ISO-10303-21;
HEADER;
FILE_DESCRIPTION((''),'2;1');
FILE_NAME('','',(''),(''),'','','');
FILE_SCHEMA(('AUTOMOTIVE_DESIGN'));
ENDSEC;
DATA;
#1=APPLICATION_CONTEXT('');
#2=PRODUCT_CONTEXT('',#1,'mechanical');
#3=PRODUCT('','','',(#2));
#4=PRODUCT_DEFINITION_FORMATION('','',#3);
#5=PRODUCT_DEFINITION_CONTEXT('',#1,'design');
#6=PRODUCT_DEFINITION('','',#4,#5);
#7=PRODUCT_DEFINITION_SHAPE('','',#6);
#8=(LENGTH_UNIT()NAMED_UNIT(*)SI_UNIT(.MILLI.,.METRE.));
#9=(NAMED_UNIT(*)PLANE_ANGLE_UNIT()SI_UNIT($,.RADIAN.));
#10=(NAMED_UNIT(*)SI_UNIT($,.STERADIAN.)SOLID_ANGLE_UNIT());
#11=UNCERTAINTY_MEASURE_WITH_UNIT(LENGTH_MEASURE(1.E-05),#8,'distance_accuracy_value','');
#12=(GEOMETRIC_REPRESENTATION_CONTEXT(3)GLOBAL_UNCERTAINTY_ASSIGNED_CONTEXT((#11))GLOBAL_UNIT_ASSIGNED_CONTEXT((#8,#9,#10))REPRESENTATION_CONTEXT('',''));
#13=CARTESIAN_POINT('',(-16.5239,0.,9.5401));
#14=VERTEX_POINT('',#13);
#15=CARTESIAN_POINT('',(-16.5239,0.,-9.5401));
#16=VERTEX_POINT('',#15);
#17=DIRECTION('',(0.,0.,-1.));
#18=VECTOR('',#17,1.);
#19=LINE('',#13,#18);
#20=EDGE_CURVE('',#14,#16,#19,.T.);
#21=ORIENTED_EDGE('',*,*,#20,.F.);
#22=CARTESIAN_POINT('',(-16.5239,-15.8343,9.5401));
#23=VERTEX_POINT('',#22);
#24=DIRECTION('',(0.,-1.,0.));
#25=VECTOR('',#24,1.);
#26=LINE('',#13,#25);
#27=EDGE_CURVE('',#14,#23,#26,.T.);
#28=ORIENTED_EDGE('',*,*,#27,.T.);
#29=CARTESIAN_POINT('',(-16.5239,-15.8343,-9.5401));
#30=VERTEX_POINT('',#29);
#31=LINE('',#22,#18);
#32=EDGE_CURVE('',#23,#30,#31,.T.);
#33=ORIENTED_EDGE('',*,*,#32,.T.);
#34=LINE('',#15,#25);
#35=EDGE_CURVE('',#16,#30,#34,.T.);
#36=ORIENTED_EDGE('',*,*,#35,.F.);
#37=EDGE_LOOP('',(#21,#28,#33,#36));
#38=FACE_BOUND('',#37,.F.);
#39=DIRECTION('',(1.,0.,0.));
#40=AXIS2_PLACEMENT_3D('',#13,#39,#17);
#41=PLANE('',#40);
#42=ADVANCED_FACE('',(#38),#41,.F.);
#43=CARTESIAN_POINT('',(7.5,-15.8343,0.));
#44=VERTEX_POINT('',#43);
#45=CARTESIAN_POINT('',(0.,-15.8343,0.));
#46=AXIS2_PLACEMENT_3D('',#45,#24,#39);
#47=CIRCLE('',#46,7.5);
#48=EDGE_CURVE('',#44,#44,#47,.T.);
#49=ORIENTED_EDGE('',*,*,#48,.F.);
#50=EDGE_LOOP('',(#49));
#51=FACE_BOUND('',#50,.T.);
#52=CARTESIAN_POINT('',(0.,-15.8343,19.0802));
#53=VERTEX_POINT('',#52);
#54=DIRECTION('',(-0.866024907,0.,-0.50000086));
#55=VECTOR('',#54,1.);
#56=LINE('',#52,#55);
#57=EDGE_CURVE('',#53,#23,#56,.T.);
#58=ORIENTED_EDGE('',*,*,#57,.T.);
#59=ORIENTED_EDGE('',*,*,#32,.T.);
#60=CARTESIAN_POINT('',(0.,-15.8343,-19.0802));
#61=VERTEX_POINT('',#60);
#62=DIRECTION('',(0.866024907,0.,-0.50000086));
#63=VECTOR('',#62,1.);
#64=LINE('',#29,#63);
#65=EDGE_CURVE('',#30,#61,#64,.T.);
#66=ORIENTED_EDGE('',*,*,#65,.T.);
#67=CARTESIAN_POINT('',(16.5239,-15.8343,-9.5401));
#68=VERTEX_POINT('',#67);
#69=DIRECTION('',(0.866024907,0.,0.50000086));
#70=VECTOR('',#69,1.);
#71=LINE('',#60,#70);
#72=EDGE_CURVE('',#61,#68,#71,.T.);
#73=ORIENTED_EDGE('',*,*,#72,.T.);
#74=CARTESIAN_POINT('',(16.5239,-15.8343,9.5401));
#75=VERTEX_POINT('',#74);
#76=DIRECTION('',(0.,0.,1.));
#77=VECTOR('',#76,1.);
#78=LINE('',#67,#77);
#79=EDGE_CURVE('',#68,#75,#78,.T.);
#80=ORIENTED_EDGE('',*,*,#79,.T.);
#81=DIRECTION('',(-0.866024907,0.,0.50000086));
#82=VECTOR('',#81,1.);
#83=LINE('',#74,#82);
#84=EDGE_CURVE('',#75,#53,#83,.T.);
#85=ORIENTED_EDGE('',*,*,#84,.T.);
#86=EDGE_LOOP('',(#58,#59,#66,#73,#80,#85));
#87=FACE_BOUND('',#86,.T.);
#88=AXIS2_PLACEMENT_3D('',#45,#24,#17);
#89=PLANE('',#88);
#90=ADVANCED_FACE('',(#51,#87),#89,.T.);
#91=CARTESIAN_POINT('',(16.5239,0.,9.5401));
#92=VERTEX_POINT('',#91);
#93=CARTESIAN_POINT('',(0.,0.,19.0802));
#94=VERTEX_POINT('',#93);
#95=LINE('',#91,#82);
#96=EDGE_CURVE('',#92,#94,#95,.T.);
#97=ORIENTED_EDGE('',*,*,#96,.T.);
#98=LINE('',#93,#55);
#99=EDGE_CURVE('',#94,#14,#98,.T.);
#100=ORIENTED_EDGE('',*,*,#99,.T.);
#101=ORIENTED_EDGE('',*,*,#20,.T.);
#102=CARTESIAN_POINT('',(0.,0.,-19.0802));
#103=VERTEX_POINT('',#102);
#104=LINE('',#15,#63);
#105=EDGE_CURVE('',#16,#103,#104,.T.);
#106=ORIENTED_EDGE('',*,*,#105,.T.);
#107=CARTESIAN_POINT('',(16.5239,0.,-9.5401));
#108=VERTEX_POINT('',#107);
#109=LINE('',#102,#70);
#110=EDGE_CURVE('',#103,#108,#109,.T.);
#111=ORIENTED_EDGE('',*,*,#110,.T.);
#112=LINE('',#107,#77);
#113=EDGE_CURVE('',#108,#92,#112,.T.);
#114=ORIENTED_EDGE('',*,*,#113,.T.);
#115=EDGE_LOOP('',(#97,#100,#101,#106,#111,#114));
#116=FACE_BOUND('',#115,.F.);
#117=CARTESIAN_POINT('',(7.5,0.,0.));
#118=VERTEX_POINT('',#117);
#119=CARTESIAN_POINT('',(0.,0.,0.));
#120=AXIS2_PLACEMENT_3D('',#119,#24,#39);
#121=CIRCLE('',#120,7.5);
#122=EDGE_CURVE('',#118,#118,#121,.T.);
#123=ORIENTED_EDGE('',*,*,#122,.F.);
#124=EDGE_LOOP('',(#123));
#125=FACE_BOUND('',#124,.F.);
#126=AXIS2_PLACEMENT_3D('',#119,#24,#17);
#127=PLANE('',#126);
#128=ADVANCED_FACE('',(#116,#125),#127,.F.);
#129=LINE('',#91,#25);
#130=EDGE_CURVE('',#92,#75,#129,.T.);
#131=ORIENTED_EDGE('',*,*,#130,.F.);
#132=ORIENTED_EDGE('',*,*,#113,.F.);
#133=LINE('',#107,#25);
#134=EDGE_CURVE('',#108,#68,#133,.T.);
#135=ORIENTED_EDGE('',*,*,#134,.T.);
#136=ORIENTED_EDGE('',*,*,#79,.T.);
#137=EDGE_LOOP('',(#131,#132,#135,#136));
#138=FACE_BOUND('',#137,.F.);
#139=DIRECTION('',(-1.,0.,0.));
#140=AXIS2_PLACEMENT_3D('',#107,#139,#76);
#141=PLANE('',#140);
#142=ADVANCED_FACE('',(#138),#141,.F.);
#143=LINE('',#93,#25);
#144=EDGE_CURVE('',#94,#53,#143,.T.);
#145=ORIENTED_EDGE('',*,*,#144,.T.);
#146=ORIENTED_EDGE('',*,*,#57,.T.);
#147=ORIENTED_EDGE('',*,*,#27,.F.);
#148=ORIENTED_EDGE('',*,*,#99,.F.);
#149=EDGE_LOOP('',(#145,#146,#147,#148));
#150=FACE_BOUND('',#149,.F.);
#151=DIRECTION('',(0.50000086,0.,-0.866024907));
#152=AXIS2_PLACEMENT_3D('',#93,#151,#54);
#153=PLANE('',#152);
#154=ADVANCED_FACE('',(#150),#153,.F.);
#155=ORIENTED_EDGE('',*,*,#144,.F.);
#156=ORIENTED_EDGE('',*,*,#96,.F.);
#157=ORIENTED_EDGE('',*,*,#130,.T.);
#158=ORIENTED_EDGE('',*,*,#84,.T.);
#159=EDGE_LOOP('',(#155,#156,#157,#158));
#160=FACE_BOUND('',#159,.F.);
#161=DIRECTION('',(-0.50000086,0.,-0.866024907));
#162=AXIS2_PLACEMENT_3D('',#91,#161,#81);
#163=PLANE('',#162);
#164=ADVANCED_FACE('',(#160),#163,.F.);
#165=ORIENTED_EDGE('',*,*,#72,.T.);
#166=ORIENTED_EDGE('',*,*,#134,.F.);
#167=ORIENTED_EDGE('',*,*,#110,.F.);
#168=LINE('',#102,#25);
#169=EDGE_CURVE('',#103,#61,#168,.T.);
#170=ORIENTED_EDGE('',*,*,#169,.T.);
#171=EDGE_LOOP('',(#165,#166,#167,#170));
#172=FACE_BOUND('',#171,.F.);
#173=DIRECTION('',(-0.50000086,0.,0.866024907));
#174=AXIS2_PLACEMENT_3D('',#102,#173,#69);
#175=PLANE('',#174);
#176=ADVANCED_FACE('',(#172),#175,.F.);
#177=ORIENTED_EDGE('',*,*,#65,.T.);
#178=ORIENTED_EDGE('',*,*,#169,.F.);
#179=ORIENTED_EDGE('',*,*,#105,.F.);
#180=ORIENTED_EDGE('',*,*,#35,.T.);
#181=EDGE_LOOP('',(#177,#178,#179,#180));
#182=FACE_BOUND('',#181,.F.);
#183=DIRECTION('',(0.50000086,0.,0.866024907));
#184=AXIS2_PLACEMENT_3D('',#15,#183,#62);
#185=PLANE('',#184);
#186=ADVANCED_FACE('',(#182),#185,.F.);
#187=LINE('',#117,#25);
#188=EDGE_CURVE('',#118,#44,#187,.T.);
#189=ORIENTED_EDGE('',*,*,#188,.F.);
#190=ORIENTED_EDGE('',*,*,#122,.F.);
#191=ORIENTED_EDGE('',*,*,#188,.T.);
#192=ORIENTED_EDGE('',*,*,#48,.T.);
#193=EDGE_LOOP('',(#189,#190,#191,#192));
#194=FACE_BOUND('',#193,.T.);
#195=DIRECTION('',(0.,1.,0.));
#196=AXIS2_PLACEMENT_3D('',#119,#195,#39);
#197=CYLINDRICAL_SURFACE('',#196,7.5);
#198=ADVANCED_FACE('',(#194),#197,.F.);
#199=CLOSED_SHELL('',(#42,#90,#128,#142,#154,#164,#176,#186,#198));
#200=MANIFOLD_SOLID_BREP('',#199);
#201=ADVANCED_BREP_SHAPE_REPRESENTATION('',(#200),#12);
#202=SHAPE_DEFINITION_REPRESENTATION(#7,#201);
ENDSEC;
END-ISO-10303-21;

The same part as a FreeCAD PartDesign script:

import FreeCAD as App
import Part
import Sketcher
Q = App.Units.Quantity


def add_polygon(sketch, points):
    """Adds a closed chain of lines whose ends are joined by coincident constraints."""
    first, n = sketch.GeometryCount, len(points)
    for a, b in zip(points, points[1:] + points[:1]):
        sketch.addGeometry(Part.LineSegment(App.Vector(*a, 0), App.Vector(*b, 0)), False)
    for i in range(n):
        sketch.addConstraint(Sketcher.Constraint("Coincident", first + i, 2, first + (i + 1) % n, 1))

doc = App.newDocument("Part")
body = doc.addObject("PartDesign::Body", "Body")

sketch1 = body.newObject("Sketcher::SketchObject", "Sketch")
sketch1.AttachmentSupport = (doc.getObject("XZ_Plane"), [""])
sketch1.MapMode = "FlatFace"
add_polygon(sketch1, [(17, -10), (17, 10), (0, 19), (-17, 10), (-17, -10), (0, -19)])
sketch1.addGeometry(Part.Circle(App.Vector(0, 0, 0), App.Vector(0, 0, 1), 8), False)
sketch1.addConstraint(Sketcher.Constraint("Vertical", 0))
sketch1.addConstraint(Sketcher.Constraint("Vertical", 3))
sketch1.addConstraint(Sketcher.Constraint("Coincident", 6, 3, -1, 1))
sketch1.addConstraint(Sketcher.Constraint("Symmetric", 0, 2, 3, 2, -1, 1))
sketch1.addConstraint(Sketcher.Constraint("Symmetric", 1, 2, 4, 2, -1, 1))
sketch1.addConstraint(Sketcher.Constraint("PointOnObject", 1, 2, -2))
sketch1.addConstraint(Sketcher.Constraint("Parallel", 2, 5))
sketch1.addConstraint(Sketcher.Constraint("Horizontal", 0, 2, 2, 2))
sketch1.addConstraint(Sketcher.Constraint("Diameter", 6, 15.0))
sketch1.addConstraint(Sketcher.Constraint("Angle", 1, Q("150 deg")))
sketch1.addConstraint(Sketcher.Constraint("DistanceY", -1, 1, 0, 2, 9.54))
sketch1.addConstraint(Sketcher.Constraint("DistanceY", 0, 2, 1, 2, 9.54))
pad1 = body.newObject("PartDesign::Pad", "Pad")
pad1.Profile = sketch1
pad1.Length = 15.8343

doc.recompute()
